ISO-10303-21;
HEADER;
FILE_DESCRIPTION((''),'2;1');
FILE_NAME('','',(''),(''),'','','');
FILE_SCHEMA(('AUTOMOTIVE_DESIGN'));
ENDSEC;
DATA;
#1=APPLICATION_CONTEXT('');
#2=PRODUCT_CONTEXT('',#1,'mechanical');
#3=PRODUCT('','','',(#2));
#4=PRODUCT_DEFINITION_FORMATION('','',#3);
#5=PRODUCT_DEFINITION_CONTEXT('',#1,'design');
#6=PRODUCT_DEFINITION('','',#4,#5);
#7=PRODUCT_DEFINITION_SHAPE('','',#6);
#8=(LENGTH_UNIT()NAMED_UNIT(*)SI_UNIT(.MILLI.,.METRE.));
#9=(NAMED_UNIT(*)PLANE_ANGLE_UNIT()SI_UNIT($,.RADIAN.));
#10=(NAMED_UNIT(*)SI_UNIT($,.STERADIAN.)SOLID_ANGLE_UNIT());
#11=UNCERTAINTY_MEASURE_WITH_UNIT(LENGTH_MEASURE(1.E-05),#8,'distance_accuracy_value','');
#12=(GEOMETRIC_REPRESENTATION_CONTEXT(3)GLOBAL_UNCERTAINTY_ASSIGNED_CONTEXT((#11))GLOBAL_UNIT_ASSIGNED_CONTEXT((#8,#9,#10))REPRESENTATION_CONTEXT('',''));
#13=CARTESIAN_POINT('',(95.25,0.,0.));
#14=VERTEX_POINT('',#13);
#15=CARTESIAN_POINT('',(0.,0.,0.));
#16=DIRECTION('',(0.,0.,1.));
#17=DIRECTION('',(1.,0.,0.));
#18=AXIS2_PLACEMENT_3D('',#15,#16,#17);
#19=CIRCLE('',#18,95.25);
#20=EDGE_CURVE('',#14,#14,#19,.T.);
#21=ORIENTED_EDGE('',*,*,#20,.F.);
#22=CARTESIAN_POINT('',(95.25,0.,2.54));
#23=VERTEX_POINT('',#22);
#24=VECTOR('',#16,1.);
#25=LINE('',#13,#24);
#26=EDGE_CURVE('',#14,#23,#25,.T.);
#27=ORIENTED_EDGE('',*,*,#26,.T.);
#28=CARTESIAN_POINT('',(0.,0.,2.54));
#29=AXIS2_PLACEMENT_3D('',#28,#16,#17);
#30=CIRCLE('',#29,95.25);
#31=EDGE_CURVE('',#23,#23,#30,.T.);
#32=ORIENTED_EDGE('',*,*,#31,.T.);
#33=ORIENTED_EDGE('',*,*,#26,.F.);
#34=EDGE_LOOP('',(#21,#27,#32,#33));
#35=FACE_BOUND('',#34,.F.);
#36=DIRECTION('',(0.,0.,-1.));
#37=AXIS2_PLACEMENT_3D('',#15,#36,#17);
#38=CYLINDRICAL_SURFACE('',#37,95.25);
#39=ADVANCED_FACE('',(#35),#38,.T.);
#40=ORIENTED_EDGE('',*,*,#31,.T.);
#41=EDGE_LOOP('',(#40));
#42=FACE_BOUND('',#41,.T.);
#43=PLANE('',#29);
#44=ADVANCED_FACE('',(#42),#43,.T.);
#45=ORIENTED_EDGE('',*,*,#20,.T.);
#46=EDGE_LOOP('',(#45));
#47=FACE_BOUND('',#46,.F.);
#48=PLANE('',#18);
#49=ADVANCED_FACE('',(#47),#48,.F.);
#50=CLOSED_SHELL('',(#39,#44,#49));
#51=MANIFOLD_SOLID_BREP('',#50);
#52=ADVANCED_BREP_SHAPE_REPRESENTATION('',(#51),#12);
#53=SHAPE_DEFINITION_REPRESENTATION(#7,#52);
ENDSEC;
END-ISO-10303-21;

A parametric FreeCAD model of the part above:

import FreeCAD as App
import Part
import Sketcher
Q = App.Units.Quantity

doc = App.newDocument("Part")
body = doc.addObject("PartDesign::Body", "Body")

# Sketch on XY plane
sketch1 = body.newObject("Sketcher::SketchObject", "Sketch")
sketch1.AttachmentSupport = (doc.getObject("XY_Plane"), [""])
sketch1.MapMode = "FlatFace"
sketch1.addGeometry(Part.Circle(App.Vector(0, 0, 0), App.Vector(0, 0, 1), 95), False)
sketch1.addConstraint([
    Sketcher.Constraint("Coincident", 0, 3, -1, 1),
    Sketcher.Constraint("Diameter", 0, Q("7.5 in")),
])
pad1 = body.newObject("PartDesign::Pad", "Pad")
pad1.Profile = sketch1
pad1.Length = Q("0.1 in")

doc.recompute()
